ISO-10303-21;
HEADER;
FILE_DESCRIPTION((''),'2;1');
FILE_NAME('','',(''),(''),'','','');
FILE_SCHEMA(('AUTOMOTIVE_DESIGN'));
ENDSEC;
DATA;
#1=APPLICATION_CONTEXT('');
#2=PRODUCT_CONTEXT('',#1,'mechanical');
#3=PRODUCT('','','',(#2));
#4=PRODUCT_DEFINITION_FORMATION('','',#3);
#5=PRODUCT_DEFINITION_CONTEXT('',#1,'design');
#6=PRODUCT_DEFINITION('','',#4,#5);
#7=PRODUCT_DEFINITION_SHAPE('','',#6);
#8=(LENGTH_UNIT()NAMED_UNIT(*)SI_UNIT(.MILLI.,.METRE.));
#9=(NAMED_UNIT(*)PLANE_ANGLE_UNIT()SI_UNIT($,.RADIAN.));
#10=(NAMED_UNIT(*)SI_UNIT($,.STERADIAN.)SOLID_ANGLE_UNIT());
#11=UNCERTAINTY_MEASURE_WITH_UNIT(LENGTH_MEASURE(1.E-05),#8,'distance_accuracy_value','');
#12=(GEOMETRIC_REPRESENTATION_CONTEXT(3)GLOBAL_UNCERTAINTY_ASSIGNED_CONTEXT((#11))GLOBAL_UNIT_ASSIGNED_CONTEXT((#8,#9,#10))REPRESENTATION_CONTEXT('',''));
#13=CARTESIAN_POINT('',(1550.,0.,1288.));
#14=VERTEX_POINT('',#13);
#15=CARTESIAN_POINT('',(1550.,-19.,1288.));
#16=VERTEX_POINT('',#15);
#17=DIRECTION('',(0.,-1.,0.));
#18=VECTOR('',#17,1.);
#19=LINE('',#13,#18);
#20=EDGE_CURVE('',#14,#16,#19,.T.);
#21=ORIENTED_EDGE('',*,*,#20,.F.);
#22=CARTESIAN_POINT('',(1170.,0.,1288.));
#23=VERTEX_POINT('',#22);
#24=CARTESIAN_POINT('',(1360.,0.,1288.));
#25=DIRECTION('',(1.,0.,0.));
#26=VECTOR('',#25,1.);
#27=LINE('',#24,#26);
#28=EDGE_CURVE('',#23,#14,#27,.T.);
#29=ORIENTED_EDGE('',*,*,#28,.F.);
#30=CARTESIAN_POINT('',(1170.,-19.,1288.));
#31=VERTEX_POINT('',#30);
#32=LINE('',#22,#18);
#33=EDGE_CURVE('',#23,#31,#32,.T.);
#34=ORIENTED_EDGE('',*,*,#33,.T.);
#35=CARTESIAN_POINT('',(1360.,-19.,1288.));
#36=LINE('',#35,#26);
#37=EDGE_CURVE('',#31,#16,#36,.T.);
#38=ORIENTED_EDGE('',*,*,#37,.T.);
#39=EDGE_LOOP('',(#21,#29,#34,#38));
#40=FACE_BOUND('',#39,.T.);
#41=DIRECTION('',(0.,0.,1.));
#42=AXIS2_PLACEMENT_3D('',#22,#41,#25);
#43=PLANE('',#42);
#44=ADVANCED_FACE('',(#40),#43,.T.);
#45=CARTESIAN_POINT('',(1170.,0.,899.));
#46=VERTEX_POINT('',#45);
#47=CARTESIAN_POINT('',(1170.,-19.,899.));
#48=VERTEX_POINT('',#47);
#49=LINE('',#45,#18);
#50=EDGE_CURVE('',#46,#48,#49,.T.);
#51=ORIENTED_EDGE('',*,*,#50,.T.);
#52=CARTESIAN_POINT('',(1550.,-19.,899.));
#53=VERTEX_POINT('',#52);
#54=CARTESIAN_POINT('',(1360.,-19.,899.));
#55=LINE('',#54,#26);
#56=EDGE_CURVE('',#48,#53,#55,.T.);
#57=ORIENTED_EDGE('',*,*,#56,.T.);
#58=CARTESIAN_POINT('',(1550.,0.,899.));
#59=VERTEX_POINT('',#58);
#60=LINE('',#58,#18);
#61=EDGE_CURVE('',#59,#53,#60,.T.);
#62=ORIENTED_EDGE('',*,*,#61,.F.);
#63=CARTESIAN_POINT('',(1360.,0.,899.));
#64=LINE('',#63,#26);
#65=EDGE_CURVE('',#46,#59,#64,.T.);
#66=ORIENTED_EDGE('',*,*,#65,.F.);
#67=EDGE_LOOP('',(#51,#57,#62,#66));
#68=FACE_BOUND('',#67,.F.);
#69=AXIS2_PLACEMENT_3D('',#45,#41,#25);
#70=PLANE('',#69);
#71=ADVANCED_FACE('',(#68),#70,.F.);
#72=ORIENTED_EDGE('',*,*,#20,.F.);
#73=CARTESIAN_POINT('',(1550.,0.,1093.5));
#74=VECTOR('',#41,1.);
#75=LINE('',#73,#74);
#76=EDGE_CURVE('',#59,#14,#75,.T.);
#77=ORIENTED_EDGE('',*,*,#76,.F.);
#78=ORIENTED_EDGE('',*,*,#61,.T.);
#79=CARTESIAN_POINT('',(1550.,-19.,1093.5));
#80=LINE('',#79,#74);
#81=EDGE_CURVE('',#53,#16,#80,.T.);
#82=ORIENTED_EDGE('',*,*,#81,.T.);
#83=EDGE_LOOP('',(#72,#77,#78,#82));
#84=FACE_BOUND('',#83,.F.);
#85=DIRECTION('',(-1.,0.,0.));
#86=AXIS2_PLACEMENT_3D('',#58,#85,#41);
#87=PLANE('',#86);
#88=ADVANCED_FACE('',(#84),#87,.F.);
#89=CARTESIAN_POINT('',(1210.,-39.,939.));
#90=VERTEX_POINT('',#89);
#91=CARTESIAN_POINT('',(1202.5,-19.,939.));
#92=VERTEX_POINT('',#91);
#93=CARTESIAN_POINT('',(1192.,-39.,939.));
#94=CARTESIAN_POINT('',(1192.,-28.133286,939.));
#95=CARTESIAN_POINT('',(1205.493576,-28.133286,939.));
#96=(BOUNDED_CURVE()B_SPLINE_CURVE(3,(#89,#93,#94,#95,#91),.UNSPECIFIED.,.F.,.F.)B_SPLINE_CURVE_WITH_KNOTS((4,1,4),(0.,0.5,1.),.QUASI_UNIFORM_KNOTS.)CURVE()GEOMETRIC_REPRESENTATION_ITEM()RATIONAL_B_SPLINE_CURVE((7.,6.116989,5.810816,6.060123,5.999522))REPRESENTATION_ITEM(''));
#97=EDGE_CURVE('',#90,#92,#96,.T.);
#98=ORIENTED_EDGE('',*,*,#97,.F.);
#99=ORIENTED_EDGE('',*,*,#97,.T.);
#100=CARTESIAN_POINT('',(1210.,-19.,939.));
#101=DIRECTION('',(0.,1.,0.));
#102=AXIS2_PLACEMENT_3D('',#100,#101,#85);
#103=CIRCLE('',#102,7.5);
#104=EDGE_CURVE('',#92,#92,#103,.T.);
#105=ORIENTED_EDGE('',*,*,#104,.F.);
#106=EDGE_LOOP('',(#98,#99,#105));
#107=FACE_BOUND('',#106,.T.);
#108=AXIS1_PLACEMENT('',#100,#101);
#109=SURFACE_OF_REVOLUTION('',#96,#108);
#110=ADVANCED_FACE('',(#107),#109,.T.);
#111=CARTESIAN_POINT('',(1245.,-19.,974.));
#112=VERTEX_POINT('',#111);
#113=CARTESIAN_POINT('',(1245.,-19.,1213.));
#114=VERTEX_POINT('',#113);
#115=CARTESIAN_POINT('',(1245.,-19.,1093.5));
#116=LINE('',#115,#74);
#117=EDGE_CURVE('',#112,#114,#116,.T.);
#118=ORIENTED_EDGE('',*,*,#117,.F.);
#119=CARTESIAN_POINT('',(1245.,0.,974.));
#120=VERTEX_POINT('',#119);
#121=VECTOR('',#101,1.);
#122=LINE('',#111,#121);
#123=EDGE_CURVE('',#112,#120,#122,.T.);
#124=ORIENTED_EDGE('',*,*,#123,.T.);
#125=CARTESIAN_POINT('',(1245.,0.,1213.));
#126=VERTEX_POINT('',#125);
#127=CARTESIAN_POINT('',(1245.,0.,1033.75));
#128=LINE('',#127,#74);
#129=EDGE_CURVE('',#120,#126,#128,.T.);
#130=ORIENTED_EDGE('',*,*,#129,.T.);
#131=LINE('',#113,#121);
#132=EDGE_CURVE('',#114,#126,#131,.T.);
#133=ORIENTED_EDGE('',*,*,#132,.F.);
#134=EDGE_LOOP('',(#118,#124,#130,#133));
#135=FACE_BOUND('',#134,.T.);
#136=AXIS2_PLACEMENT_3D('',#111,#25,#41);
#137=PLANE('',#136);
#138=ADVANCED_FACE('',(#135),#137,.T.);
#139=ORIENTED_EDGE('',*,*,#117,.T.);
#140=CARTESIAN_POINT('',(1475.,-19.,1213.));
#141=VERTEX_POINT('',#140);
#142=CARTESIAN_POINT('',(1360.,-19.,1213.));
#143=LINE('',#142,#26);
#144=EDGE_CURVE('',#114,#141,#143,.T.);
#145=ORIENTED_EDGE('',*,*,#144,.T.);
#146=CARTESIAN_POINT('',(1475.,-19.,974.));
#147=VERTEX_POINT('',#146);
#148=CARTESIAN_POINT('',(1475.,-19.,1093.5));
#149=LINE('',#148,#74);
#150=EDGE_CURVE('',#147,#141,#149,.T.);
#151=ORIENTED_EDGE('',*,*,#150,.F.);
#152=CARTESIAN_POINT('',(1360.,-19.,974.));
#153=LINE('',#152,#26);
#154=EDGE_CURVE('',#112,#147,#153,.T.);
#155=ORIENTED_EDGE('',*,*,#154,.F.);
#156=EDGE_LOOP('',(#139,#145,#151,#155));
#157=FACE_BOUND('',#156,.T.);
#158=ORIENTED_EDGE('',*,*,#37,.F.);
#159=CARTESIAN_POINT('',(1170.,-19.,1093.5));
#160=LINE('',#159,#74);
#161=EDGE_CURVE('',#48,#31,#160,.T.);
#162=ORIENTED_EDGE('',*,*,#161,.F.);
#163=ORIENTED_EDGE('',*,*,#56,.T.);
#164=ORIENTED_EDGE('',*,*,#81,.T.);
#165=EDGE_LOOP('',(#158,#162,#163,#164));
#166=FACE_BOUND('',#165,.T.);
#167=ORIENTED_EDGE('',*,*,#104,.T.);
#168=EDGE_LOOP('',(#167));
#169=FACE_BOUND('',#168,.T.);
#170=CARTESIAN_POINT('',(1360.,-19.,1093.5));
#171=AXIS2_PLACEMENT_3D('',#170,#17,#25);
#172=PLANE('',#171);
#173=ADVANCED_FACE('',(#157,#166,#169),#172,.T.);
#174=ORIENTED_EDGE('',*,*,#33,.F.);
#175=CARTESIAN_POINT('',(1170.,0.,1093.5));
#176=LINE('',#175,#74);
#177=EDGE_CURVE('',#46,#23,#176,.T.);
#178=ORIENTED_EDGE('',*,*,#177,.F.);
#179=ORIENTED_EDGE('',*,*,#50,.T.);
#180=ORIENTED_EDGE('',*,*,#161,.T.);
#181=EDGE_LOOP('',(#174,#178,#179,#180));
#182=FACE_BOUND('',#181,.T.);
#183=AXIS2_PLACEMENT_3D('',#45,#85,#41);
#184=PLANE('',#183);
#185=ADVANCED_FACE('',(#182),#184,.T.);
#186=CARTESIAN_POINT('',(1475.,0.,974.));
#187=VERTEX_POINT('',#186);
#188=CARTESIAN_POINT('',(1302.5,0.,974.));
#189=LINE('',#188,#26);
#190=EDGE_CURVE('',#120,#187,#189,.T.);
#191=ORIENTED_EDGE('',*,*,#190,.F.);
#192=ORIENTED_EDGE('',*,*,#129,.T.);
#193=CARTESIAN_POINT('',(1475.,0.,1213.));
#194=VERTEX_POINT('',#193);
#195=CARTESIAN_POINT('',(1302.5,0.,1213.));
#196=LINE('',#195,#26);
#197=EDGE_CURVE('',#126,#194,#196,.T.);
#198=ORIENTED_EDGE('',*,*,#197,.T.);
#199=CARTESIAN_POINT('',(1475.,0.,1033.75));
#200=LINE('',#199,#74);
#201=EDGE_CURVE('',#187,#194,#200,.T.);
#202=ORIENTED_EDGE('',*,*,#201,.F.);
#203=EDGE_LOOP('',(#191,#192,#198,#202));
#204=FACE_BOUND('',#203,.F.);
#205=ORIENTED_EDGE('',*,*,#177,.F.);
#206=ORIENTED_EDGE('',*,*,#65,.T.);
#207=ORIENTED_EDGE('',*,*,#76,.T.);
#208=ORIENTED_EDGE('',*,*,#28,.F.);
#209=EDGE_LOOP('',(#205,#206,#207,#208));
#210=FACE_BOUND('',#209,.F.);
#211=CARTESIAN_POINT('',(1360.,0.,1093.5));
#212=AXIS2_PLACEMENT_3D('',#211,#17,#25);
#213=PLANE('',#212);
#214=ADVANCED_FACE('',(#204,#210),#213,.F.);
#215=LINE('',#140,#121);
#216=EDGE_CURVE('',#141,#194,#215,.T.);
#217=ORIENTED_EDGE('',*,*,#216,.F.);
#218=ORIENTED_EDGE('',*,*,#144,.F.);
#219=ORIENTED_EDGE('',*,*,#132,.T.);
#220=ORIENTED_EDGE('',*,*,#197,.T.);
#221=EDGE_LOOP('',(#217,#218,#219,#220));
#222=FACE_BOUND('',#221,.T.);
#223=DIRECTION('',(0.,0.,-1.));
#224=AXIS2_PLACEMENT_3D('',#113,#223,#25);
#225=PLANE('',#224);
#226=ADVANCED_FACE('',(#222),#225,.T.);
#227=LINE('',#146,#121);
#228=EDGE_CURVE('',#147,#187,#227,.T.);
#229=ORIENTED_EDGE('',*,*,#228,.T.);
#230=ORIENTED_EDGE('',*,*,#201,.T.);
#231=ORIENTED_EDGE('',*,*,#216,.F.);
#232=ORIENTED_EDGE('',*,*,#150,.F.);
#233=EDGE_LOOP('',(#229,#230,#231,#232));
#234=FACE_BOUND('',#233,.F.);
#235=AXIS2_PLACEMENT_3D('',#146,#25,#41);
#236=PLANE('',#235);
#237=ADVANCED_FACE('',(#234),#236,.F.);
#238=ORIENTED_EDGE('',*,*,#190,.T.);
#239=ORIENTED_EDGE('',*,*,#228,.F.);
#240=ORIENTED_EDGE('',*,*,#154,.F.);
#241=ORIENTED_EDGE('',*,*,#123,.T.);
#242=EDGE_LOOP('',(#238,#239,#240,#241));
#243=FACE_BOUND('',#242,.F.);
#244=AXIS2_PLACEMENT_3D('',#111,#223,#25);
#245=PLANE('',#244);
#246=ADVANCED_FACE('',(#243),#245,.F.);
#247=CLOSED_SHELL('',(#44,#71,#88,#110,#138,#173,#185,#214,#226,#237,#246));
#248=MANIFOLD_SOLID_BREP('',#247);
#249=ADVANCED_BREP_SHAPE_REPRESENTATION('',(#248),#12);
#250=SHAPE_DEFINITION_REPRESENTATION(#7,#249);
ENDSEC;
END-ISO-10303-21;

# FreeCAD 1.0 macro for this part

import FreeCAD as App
import Part
import Sketcher
from FreeCAD import Vector

doc = App.newDocument("Part")
body = doc.addObject("PartDesign::Body", "Body")

sketch1 = body.newObject("Sketcher::SketchObject", "Sketch")
sketch1.AttachmentSupport = (doc.getObject("XZ_Plane"), [""])
sketch1.MapMode = "FlatFace"
sketch1.addGeometry(Part.LineSegment(Vector(0, 389, 0), Vector(0, 0, 0)), False)
sketch1.addGeometry(Part.LineSegment(Vector(0, 0, 0), Vector(380, 0, 0)), False)
sketch1.addGeometry(Part.LineSegment(Vector(380, 0, 0), Vector(380, 389, 0)), False)
sketch1.addGeometry(Part.LineSegment(Vector(380, 389, 0), Vector(0, 389, 0)), False)
sketch1.addConstraint(Sketcher.Constraint("Coincident", 0, 2, 1, 1))
sketch1.addConstraint(Sketcher.Constraint("Coincident", 1, 2, 2, 1))
sketch1.addConstraint(Sketcher.Constraint("Coincident", 2, 2, 3, 1))
sketch1.addConstraint(Sketcher.Constraint("Coincident", 3, 2, 0, 1))
sketch1.addConstraint(Sketcher.Constraint("Vertical", 0))
sketch1.addConstraint(Sketcher.Constraint("Horizontal", 1))
sketch1.addConstraint(Sketcher.Constraint("Vertical", 2))
sketch1.addConstraint(Sketcher.Constraint("Horizontal", 3))
sketch1.addConstraint(Sketcher.Constraint("Coincident", 0, 2, -1, 1))
sketch1.addConstraint(Sketcher.Constraint("DistanceX", 1, 1, 1, 2, 380.0))
sketch1.addConstraint(Sketcher.Constraint("DistanceY", 0, 2, 0, 1, 389.0))
pad1 = body.newObject("PartDesign::Pad", "Pad")
pad1.Profile = sketch1
pad1.Length = 19

sketch2 = body.newObject("Sketcher::SketchObject", "Sketch001")
sketch2.AttachmentSupport = (doc.getObject("XY_Plane"), [""])
sketch2.MapMode = "FlatFace"
sketch2.AttachmentOffset = App.Placement(Vector(0, 0, 40), App.Rotation())
sketch2.addGeometry(Part.LineSegment(Vector(40, -39, 0), Vector(40, -19, 0)), False)
sketch2.addGeometry(Part.LineSegment(Vector(40, -19, 0), Vector(32.5, -19, 0)), False)
sketch2.addGeometry(Part.BSplineCurve([Vector(40, -39, 0), Vector(22, -39, 0), Vector(22, -28.133286, 0), Vector(35.493576, -28.133286, 0), Vector(32.5, -19, 0)], [4, 1, 4], [0, 0.5, 1], False, 3, [7, 6.116989, 5.810816, 6.060123, 5.999522], False), False)
sketch2.addGeometry(Part.LineSegment(Vector(40, -39, 0), Vector(40, -19, 0)), True)
sketch2.addConstraint(Sketcher.Constraint("Block", 2))
sketch2.addConstraint(Sketcher.Constraint("Coincident", 0, 2, 1, 1))
sketch2.addConstraint(Sketcher.Constraint("Coincident", 1, 2, 2, 2))
sketch2.addConstraint(Sketcher.Constraint("Coincident", 2, 1, 0, 1))
sketch2.addConstraint(Sketcher.Constraint("Vertical", 0))
sketch2.addConstraint(Sketcher.Constraint("Horizontal", 1))
sketch2.addConstraint(Sketcher.Constraint("Vertical", 3))
sketch2.addConstraint(Sketcher.Constraint("Coincident", 3, 2, 0, 2))
sketch2.addConstraint(Sketcher.Constraint("Equal", 0, 3))
revolution = body.newObject("PartDesign::Revolution", "Revolution")
revolution.Profile = sketch2
revolution.ReferenceAxis = (sketch2, ["Axis0"])
revolution.Angle = 360

sketch3 = body.newObject("Sketcher::SketchObject", "Sketch002")
sketch3.AttachmentSupport = (doc.getObject("XZ_Plane"), [""])
sketch3.MapMode = "FlatFace"
sketch3.AttachmentOffset = App.Placement(Vector(0, 0, 19), App.Rotation())
sketch3.addGeometry(Part.LineSegment(Vector(75, 314, 0), Vector(75, 75, 0)), False)
sketch3.addGeometry(Part.LineSegment(Vector(75, 75, 0), Vector(305, 75, 0)), False)
sketch3.addGeometry(Part.LineSegment(Vector(305, 75, 0), Vector(305, 314, 0)), False)
sketch3.addGeometry(Part.LineSegment(Vector(305, 314, 0), Vector(75, 314, 0)), False)
sketch3.addConstraint(Sketcher.Constraint("Coincident", 0, 2, 1, 1))
sketch3.addConstraint(Sketcher.Constraint("Coincident", 1, 2, 2, 1))
sketch3.addConstraint(Sketcher.Constraint("Coincident", 2, 2, 3, 1))
sketch3.addConstraint(Sketcher.Constraint("Coincident", 3, 2, 0, 1))
sketch3.addConstraint(Sketcher.Constraint("Vertical", 0))
sketch3.addConstraint(Sketcher.Constraint("Horizontal", 1))
sketch3.addConstraint(Sketcher.Constraint("Vertical", 2))
sketch3.addConstraint(Sketcher.Constraint("Horizontal", 3))
sketch3.addConstraint(Sketcher.Constraint("DistanceX", 1, 1, 1, 2, 230.0))
sketch3.addConstraint(Sketcher.Constraint("DistanceY", 0, 2, 0, 1, 239.0))
sketch3.addConstraint(Sketcher.Constraint("DistanceX", -1, 1, 0, 2, 75.0))
sketch3.addConstraint(Sketcher.Constraint("DistanceY", -1, 1, 0, 2, 75.0))
pocket1 = body.newObject("PartDesign::Pocket", "Pocket")
pocket1.Profile = sketch3
pocket1.Type = "ThroughAll"
body2 = doc.addObject("PartDesign::Body", "Body001")
doc.recompute()

body.Placement = App.Placement(Vector(395.5, 0, 899), App.Rotation(Vector(0, 0, 1), 0))
boolean = body2.newObject("PartDesign::Boolean", "Boolean")
boolean.Type = "Fuse"
boolean.addObjects([body])
body3 = doc.addObject("PartDesign::Body", "Body002")
doc.recompute()

body2.Placement = App.Placement(Vector(-395.5, 0, -899), App.Rotation(Vector(0, 0, 1), 0))
boolean2 = body3.newObject("PartDesign::Boolean", "Boolean001")
boolean2.Type = "Fuse"
boolean2.addObjects([body2])
body4 = doc.addObject("PartDesign::Body", "Body003")
doc.recompute()

body3.Placement = App.Placement(Vector(1170, 0, 899), App.Rotation(Vector(0, 0, 1), 0))
boolean3 = body4.newObject("PartDesign::Boolean", "Boolean002")
boolean3.Type = "Fuse"
boolean3.addObjects([body3])

doc.recompute()
